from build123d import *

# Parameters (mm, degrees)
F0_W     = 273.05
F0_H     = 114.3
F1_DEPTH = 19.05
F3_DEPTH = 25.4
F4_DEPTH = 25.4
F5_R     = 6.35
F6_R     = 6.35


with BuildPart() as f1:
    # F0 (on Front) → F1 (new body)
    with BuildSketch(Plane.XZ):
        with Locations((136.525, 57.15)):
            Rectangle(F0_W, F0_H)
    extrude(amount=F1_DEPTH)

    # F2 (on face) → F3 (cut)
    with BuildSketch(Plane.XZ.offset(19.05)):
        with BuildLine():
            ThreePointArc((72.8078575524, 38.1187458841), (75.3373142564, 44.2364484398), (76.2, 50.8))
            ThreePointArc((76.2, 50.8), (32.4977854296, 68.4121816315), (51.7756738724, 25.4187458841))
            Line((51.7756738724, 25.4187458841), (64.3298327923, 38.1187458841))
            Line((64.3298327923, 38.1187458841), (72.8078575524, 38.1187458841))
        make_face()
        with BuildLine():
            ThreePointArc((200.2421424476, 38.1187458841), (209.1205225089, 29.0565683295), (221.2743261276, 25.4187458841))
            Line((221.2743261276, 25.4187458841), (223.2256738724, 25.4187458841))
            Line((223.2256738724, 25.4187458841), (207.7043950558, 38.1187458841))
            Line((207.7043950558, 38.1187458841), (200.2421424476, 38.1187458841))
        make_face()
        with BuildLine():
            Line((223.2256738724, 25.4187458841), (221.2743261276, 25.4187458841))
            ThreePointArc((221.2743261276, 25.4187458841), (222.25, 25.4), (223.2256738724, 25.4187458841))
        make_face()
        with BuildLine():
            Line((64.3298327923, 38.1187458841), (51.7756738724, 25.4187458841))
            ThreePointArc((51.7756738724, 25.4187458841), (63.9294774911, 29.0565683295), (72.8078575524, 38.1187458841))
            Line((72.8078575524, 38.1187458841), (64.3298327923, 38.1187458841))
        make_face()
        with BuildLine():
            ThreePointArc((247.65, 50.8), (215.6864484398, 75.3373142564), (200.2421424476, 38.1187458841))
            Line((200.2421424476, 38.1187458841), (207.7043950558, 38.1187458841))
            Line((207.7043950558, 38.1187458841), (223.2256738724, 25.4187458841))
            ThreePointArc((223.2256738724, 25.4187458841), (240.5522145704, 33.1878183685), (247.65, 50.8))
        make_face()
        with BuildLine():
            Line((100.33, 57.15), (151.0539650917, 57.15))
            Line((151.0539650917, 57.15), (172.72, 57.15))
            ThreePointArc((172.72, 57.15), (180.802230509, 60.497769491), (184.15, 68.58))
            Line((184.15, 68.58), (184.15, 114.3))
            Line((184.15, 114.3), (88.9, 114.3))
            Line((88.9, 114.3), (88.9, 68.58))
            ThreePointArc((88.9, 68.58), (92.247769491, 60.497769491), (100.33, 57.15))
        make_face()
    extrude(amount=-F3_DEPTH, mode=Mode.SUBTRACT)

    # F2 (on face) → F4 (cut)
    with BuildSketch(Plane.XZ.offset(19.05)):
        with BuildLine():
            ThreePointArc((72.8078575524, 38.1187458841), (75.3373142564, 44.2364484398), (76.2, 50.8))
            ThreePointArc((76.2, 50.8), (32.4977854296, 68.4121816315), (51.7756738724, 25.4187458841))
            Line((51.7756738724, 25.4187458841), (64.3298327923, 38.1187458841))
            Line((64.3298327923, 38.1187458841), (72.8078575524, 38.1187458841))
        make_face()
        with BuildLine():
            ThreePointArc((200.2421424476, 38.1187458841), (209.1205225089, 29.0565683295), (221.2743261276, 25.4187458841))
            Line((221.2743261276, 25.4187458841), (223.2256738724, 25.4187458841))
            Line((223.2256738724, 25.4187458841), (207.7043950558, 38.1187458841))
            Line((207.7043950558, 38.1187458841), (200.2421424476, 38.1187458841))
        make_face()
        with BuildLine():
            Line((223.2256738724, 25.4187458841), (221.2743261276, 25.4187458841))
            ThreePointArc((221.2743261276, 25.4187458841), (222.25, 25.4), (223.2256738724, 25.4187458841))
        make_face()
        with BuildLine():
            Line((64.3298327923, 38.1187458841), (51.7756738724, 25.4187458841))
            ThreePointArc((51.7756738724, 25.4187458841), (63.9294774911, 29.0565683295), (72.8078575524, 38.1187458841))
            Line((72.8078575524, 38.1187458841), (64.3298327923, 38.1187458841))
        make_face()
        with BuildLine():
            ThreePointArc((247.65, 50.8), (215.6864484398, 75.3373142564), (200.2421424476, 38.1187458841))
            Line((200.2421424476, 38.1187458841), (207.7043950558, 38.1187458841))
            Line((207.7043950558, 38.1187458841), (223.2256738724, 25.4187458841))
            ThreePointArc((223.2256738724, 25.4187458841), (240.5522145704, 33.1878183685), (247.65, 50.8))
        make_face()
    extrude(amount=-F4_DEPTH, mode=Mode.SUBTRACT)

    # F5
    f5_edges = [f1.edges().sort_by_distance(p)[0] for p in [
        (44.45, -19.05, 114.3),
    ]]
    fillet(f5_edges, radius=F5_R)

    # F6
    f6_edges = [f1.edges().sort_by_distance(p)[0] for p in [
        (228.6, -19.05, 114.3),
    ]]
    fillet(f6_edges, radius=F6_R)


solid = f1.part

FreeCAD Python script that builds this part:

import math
import FreeCAD as App
import Part
import Sketcher

V = App.Vector
Q = App.Units.Quantity


def edges_at(feature, points):
    """Names of the edges that pass closest to the given points."""
    edges = feature.Shape.Edges
    near = lambda p: min(range(len(edges)), key=lambda i: edges[i].distToShape(Part.Vertex(*p))[0])
    return sorted({f"Edge{near(p) + 1}" for p in points})


def add_polygon(sketch, points):
    """Adds a closed chain of lines whose ends are joined by coincident constraints."""
    first, n = sketch.GeometryCount, len(points)
    for a, b in zip(points, points[1:] + points[:1]):
        sketch.addGeometry(Part.LineSegment(App.Vector(*a, 0), App.Vector(*b, 0)), False)
    for i in range(n):
        sketch.addConstraint(Sketcher.Constraint("Coincident", first + i, 2, first + (i + 1) % n, 1))

doc = App.newDocument("Part")
body = doc.addObject("PartDesign::Body", "Body")

# Sketch on XZ plane
sketch1 = body.newObject("Sketcher::SketchObject", "Sketch")
sketch1.AttachmentSupport = (doc.getObject("XZ_Plane"), [""])
sketch1.MapMode = "FlatFace"
add_polygon(sketch1, [(0, 114.3), (0, 0), (273.05, 0), (273.05, 114.3)])  # lines 0-3
sketch1.addConstraint([
    Sketcher.Constraint("Vertical", 0),
    Sketcher.Constraint("Horizontal", 1),
    Sketcher.Constraint("Vertical", 2),
    Sketcher.Constraint("Horizontal", 3),
    Sketcher.Constraint("Coincident", 0, 2, -1, 1),
    Sketcher.Constraint("DistanceY", 0, 2, 0, 1, Q("4.5 in")),
    Sketcher.Constraint("DistanceX", 1, 1, 1, 2, Q("10.75 in")),
])
pad1 = body.newObject("PartDesign::Pad", "Pad")
pad1.Profile = sketch1
pad1.Length = Q("0.75 in")

# Sketch on XZ plane
sketch2 = body.newObject("Sketcher::SketchObject", "Sketch001")
sketch2.AttachmentSupport = (doc.getObject("XZ_Plane"), [""])
sketch2.MapMode = "FlatFace"
sketch2.AttachmentOffset = App.Placement(V(0, 0, 0.75 * 25.4), App.Rotation())
sketch2.addGeometry([
    Part.ArcOfCircle(Part.Circle(V(50.8, 50.8, 0), V(0, 0, 1), 25.4), math.radians(-29.951185), math.radians(0)),  # 0
    Part.ArcOfCircle(Part.Circle(V(50.8, 50.8, 0), V(0, 0, 1), 25.4), math.radians(0), math.radians(272.201408)),  # 1
    Part.ArcOfCircle(Part.Circle(V(50.8, 50.8, 0), V(0, 0, 1), 25.4), math.radians(-87.798592), math.radians(-29.951185)),  # 2
    Part.ArcOfCircle(Part.Circle(V(222.25, 50.8, 0), V(0, 0, 1), 25.4), math.radians(-92.201408), math.radians(-87.798592)),  # 3
    Part.ArcOfCircle(Part.Circle(V(222.25, 50.8, 0), V(0, 0, 1), 25.4), math.radians(-87.798592), math.radians(0)),  # 4
    Part.ArcOfCircle(Part.Circle(V(222.25, 50.8, 0), V(0, 0, 1), 25.4), math.radians(0), math.radians(267.798592)),  # 5
    Part.LineSegment(V(100.33, 57.15, 0), V(172.72, 57.15, 0)),  # 6
    Part.ArcOfCircle(Part.Circle(V(172.72, 68.58, 0), V(0, 0, 1), 11.43), math.radians(-90), math.radians(0)),  # 7
    Part.LineSegment(V(184.15, 68.58, 0), V(184.15, 114.3, 0)),  # 8
    Part.LineSegment(V(184.15, 114.3, 0), V(88.9, 114.3, 0)),  # 9
    Part.LineSegment(V(88.9, 114.3, 0), V(88.9, 68.58, 0)),  # 10
    Part.ArcOfCircle(Part.Circle(V(100.33, 68.58, 0), V(0, 0, 1), 11.43), math.radians(180), math.radians(270)),  # 11
], False)
sketch2.addConstraint([
    Sketcher.Constraint("Tangent", 0, 2, 1, 1),
    Sketcher.Constraint("Tangent", 1, 2, 2, 1),
    Sketcher.Constraint("Tangent", 2, 2, 0, 1),
    Sketcher.Constraint("Tangent", 3, 2, 4, 1),
    Sketcher.Constraint("Tangent", 4, 2, 5, 1),
    Sketcher.Constraint("Coincident", 5, 2, 3, 1),
    Sketcher.Constraint("Tangent", 6, 2, 7, 1),
    Sketcher.Constraint("Tangent", 7, 2, 8, 1),
    Sketcher.Constraint("Coincident", 8, 2, 9, 1),
    Sketcher.Constraint("Coincident", 9, 2, 10, 1),
    Sketcher.Constraint("Tangent", 10, 2, 11, 1),
    Sketcher.Constraint("Tangent", 11, 2, 6, 1),
    Sketcher.Constraint("Horizontal", 6),
    Sketcher.Constraint("Vertical", 8),
    Sketcher.Constraint("Horizontal", 9),
    Sketcher.Constraint("Vertical", 10),
    Sketcher.Constraint("Equal", 2, 3),
    Sketcher.Constraint("Equal", 3, 4),
    Sketcher.Constraint("Equal", 7, 11),
    Sketcher.Constraint("Horizontal", 2, 3, 3, 3),
    Sketcher.Constraint("Horizontal", 5, 3, 0, 2),
    Sketcher.Constraint("Horizontal", 1, 2, 3, 2),
    Sketcher.Constraint("Horizontal", 0, 2, 4, 2),
    Sketcher.Constraint("Horizontal", 3, 2, 5, 2),
    Sketcher.Constraint("Radius", 0, Q("1 in")),
    Sketcher.Constraint("Radius", 7, Q("0.45 in")),
    Sketcher.Constraint("DistanceY", 8, 1, 8, 2, Q("1.8 in")),
    Sketcher.Constraint("DistanceX", -1, 1, 0, 3, Q("2 in")),
    Sketcher.Constraint("DistanceY", -1, 1, 0, 3, Q("2 in")),
    Sketcher.Constraint("DistanceX", 6, 1, 6, 2, Q("2.85 in")),
    Sketcher.Constraint("DistanceX", -1, 1, 7, 3, Q("6.8 in")),
    Sketcher.Constraint("DistanceY", -1, 1, 7, 3, Q("2.7 in")),
    Sketcher.Constraint("DistanceX", 11, 3, 3, 3, Q("4.8 in")),
    Sketcher.Constraint("DistanceY", 1, 2, 2, 2, Q("0.5 in")),
    Sketcher.Constraint("DistanceX", -1, 1, 1, 2, 51.775674),
])
pocket1 = body.newObject("PartDesign::Pocket", "Pocket")
pocket1.Profile = sketch2
pocket1.Length = Q("1 in")

# Sketch on XZ plane
sketch3 = body.newObject("Sketcher::SketchObject", "Sketch002")
sketch3.AttachmentSupport = (doc.getObject("XZ_Plane"), [""])
sketch3.MapMode = "FlatFace"
sketch3.AttachmentOffset = App.Placement(V(0, 0, 0.75 * 25.4), App.Rotation())
sketch3.addGeometry([
    Part.ArcOfCircle(Part.Circle(V(50.8, 50.8, 0), V(0, 0, 1), 25.4), math.radians(-29.951185), math.radians(0)),  # 0
    Part.ArcOfCircle(Part.Circle(V(50.8, 50.8, 0), V(0, 0, 1), 25.4), math.radians(0), math.radians(272.201408)),  # 1
    Part.ArcOfCircle(Part.Circle(V(50.8, 50.8, 0), V(0, 0, 1), 25.4), math.radians(-87.798592), math.radians(-29.951185)),  # 2
    Part.ArcOfCircle(Part.Circle(V(222.25, 50.8, 0), V(0, 0, 1), 25.4), math.radians(-92.201408), math.radians(-87.798592)),  # 3
    Part.ArcOfCircle(Part.Circle(V(222.25, 50.8, 0), V(0, 0, 1), 25.4), math.radians(-87.798592), math.radians(0)),  # 4
    Part.ArcOfCircle(Part.Circle(V(222.25, 50.8, 0), V(0, 0, 1), 25.4), math.radians(0), math.radians(267.798592)),  # 5
], False)
sketch3.addConstraint([
    Sketcher.Constraint("Tangent", 0, 2, 1, 1),
    Sketcher.Constraint("Tangent", 1, 2, 2, 1),
    Sketcher.Constraint("Tangent", 2, 2, 0, 1),
    Sketcher.Constraint("Tangent", 3, 2, 4, 1),
    Sketcher.Constraint("Tangent", 4, 2, 5, 1),
    Sketcher.Constraint("Coincident", 5, 2, 3, 1),
    Sketcher.Constraint("Equal", 2, 3),
    Sketcher.Constraint("Equal", 3, 4),
    Sketcher.Constraint("Horizontal", 2, 3, 3, 3),
    Sketcher.Constraint("Horizontal", 5, 3, 0, 2),
    Sketcher.Constraint("Horizontal", 1, 2, 3, 2),
    Sketcher.Constraint("Horizontal", 0, 2, 4, 2),
    Sketcher.Constraint("Horizontal", 3, 2, 5, 2),
    Sketcher.Constraint("Radius", 0, Q("1 in")),
    Sketcher.Constraint("DistanceX", -1, 1, 0, 3, Q("2 in")),
    Sketcher.Constraint("DistanceY", -1, 1, 0, 3, Q("2 in")),
    Sketcher.Constraint("DistanceY", 1, 2, 2, 2, Q("0.5 in")),
    Sketcher.Constraint("DistanceX", -1, 1, 3, 3, Q("8.75 in")),
    Sketcher.Constraint("DistanceX", -1, 1, 1, 2, 51.775674),
])
pocket2 = body.newObject("PartDesign::Pocket", "Pocket001")
pocket2.Profile = sketch3
pocket2.Length = Q("1 in")
doc.recompute()

fillet = body.newObject("PartDesign::Fillet", "Fillet")
fillet.Base = (pocket2, edges_at(pocket2, [(44.45, -19.05, 114.3)]))
fillet.Radius = Q("0.25 in")
doc.recompute()

fillet2 = body.newObject("PartDesign::Fillet", "Fillet001")
fillet2.Base = (fillet, edges_at(fillet, [(228.6, -19.05, 114.3)]))
fillet2.Radius = Q("0.25 in")

doc.recompute()
